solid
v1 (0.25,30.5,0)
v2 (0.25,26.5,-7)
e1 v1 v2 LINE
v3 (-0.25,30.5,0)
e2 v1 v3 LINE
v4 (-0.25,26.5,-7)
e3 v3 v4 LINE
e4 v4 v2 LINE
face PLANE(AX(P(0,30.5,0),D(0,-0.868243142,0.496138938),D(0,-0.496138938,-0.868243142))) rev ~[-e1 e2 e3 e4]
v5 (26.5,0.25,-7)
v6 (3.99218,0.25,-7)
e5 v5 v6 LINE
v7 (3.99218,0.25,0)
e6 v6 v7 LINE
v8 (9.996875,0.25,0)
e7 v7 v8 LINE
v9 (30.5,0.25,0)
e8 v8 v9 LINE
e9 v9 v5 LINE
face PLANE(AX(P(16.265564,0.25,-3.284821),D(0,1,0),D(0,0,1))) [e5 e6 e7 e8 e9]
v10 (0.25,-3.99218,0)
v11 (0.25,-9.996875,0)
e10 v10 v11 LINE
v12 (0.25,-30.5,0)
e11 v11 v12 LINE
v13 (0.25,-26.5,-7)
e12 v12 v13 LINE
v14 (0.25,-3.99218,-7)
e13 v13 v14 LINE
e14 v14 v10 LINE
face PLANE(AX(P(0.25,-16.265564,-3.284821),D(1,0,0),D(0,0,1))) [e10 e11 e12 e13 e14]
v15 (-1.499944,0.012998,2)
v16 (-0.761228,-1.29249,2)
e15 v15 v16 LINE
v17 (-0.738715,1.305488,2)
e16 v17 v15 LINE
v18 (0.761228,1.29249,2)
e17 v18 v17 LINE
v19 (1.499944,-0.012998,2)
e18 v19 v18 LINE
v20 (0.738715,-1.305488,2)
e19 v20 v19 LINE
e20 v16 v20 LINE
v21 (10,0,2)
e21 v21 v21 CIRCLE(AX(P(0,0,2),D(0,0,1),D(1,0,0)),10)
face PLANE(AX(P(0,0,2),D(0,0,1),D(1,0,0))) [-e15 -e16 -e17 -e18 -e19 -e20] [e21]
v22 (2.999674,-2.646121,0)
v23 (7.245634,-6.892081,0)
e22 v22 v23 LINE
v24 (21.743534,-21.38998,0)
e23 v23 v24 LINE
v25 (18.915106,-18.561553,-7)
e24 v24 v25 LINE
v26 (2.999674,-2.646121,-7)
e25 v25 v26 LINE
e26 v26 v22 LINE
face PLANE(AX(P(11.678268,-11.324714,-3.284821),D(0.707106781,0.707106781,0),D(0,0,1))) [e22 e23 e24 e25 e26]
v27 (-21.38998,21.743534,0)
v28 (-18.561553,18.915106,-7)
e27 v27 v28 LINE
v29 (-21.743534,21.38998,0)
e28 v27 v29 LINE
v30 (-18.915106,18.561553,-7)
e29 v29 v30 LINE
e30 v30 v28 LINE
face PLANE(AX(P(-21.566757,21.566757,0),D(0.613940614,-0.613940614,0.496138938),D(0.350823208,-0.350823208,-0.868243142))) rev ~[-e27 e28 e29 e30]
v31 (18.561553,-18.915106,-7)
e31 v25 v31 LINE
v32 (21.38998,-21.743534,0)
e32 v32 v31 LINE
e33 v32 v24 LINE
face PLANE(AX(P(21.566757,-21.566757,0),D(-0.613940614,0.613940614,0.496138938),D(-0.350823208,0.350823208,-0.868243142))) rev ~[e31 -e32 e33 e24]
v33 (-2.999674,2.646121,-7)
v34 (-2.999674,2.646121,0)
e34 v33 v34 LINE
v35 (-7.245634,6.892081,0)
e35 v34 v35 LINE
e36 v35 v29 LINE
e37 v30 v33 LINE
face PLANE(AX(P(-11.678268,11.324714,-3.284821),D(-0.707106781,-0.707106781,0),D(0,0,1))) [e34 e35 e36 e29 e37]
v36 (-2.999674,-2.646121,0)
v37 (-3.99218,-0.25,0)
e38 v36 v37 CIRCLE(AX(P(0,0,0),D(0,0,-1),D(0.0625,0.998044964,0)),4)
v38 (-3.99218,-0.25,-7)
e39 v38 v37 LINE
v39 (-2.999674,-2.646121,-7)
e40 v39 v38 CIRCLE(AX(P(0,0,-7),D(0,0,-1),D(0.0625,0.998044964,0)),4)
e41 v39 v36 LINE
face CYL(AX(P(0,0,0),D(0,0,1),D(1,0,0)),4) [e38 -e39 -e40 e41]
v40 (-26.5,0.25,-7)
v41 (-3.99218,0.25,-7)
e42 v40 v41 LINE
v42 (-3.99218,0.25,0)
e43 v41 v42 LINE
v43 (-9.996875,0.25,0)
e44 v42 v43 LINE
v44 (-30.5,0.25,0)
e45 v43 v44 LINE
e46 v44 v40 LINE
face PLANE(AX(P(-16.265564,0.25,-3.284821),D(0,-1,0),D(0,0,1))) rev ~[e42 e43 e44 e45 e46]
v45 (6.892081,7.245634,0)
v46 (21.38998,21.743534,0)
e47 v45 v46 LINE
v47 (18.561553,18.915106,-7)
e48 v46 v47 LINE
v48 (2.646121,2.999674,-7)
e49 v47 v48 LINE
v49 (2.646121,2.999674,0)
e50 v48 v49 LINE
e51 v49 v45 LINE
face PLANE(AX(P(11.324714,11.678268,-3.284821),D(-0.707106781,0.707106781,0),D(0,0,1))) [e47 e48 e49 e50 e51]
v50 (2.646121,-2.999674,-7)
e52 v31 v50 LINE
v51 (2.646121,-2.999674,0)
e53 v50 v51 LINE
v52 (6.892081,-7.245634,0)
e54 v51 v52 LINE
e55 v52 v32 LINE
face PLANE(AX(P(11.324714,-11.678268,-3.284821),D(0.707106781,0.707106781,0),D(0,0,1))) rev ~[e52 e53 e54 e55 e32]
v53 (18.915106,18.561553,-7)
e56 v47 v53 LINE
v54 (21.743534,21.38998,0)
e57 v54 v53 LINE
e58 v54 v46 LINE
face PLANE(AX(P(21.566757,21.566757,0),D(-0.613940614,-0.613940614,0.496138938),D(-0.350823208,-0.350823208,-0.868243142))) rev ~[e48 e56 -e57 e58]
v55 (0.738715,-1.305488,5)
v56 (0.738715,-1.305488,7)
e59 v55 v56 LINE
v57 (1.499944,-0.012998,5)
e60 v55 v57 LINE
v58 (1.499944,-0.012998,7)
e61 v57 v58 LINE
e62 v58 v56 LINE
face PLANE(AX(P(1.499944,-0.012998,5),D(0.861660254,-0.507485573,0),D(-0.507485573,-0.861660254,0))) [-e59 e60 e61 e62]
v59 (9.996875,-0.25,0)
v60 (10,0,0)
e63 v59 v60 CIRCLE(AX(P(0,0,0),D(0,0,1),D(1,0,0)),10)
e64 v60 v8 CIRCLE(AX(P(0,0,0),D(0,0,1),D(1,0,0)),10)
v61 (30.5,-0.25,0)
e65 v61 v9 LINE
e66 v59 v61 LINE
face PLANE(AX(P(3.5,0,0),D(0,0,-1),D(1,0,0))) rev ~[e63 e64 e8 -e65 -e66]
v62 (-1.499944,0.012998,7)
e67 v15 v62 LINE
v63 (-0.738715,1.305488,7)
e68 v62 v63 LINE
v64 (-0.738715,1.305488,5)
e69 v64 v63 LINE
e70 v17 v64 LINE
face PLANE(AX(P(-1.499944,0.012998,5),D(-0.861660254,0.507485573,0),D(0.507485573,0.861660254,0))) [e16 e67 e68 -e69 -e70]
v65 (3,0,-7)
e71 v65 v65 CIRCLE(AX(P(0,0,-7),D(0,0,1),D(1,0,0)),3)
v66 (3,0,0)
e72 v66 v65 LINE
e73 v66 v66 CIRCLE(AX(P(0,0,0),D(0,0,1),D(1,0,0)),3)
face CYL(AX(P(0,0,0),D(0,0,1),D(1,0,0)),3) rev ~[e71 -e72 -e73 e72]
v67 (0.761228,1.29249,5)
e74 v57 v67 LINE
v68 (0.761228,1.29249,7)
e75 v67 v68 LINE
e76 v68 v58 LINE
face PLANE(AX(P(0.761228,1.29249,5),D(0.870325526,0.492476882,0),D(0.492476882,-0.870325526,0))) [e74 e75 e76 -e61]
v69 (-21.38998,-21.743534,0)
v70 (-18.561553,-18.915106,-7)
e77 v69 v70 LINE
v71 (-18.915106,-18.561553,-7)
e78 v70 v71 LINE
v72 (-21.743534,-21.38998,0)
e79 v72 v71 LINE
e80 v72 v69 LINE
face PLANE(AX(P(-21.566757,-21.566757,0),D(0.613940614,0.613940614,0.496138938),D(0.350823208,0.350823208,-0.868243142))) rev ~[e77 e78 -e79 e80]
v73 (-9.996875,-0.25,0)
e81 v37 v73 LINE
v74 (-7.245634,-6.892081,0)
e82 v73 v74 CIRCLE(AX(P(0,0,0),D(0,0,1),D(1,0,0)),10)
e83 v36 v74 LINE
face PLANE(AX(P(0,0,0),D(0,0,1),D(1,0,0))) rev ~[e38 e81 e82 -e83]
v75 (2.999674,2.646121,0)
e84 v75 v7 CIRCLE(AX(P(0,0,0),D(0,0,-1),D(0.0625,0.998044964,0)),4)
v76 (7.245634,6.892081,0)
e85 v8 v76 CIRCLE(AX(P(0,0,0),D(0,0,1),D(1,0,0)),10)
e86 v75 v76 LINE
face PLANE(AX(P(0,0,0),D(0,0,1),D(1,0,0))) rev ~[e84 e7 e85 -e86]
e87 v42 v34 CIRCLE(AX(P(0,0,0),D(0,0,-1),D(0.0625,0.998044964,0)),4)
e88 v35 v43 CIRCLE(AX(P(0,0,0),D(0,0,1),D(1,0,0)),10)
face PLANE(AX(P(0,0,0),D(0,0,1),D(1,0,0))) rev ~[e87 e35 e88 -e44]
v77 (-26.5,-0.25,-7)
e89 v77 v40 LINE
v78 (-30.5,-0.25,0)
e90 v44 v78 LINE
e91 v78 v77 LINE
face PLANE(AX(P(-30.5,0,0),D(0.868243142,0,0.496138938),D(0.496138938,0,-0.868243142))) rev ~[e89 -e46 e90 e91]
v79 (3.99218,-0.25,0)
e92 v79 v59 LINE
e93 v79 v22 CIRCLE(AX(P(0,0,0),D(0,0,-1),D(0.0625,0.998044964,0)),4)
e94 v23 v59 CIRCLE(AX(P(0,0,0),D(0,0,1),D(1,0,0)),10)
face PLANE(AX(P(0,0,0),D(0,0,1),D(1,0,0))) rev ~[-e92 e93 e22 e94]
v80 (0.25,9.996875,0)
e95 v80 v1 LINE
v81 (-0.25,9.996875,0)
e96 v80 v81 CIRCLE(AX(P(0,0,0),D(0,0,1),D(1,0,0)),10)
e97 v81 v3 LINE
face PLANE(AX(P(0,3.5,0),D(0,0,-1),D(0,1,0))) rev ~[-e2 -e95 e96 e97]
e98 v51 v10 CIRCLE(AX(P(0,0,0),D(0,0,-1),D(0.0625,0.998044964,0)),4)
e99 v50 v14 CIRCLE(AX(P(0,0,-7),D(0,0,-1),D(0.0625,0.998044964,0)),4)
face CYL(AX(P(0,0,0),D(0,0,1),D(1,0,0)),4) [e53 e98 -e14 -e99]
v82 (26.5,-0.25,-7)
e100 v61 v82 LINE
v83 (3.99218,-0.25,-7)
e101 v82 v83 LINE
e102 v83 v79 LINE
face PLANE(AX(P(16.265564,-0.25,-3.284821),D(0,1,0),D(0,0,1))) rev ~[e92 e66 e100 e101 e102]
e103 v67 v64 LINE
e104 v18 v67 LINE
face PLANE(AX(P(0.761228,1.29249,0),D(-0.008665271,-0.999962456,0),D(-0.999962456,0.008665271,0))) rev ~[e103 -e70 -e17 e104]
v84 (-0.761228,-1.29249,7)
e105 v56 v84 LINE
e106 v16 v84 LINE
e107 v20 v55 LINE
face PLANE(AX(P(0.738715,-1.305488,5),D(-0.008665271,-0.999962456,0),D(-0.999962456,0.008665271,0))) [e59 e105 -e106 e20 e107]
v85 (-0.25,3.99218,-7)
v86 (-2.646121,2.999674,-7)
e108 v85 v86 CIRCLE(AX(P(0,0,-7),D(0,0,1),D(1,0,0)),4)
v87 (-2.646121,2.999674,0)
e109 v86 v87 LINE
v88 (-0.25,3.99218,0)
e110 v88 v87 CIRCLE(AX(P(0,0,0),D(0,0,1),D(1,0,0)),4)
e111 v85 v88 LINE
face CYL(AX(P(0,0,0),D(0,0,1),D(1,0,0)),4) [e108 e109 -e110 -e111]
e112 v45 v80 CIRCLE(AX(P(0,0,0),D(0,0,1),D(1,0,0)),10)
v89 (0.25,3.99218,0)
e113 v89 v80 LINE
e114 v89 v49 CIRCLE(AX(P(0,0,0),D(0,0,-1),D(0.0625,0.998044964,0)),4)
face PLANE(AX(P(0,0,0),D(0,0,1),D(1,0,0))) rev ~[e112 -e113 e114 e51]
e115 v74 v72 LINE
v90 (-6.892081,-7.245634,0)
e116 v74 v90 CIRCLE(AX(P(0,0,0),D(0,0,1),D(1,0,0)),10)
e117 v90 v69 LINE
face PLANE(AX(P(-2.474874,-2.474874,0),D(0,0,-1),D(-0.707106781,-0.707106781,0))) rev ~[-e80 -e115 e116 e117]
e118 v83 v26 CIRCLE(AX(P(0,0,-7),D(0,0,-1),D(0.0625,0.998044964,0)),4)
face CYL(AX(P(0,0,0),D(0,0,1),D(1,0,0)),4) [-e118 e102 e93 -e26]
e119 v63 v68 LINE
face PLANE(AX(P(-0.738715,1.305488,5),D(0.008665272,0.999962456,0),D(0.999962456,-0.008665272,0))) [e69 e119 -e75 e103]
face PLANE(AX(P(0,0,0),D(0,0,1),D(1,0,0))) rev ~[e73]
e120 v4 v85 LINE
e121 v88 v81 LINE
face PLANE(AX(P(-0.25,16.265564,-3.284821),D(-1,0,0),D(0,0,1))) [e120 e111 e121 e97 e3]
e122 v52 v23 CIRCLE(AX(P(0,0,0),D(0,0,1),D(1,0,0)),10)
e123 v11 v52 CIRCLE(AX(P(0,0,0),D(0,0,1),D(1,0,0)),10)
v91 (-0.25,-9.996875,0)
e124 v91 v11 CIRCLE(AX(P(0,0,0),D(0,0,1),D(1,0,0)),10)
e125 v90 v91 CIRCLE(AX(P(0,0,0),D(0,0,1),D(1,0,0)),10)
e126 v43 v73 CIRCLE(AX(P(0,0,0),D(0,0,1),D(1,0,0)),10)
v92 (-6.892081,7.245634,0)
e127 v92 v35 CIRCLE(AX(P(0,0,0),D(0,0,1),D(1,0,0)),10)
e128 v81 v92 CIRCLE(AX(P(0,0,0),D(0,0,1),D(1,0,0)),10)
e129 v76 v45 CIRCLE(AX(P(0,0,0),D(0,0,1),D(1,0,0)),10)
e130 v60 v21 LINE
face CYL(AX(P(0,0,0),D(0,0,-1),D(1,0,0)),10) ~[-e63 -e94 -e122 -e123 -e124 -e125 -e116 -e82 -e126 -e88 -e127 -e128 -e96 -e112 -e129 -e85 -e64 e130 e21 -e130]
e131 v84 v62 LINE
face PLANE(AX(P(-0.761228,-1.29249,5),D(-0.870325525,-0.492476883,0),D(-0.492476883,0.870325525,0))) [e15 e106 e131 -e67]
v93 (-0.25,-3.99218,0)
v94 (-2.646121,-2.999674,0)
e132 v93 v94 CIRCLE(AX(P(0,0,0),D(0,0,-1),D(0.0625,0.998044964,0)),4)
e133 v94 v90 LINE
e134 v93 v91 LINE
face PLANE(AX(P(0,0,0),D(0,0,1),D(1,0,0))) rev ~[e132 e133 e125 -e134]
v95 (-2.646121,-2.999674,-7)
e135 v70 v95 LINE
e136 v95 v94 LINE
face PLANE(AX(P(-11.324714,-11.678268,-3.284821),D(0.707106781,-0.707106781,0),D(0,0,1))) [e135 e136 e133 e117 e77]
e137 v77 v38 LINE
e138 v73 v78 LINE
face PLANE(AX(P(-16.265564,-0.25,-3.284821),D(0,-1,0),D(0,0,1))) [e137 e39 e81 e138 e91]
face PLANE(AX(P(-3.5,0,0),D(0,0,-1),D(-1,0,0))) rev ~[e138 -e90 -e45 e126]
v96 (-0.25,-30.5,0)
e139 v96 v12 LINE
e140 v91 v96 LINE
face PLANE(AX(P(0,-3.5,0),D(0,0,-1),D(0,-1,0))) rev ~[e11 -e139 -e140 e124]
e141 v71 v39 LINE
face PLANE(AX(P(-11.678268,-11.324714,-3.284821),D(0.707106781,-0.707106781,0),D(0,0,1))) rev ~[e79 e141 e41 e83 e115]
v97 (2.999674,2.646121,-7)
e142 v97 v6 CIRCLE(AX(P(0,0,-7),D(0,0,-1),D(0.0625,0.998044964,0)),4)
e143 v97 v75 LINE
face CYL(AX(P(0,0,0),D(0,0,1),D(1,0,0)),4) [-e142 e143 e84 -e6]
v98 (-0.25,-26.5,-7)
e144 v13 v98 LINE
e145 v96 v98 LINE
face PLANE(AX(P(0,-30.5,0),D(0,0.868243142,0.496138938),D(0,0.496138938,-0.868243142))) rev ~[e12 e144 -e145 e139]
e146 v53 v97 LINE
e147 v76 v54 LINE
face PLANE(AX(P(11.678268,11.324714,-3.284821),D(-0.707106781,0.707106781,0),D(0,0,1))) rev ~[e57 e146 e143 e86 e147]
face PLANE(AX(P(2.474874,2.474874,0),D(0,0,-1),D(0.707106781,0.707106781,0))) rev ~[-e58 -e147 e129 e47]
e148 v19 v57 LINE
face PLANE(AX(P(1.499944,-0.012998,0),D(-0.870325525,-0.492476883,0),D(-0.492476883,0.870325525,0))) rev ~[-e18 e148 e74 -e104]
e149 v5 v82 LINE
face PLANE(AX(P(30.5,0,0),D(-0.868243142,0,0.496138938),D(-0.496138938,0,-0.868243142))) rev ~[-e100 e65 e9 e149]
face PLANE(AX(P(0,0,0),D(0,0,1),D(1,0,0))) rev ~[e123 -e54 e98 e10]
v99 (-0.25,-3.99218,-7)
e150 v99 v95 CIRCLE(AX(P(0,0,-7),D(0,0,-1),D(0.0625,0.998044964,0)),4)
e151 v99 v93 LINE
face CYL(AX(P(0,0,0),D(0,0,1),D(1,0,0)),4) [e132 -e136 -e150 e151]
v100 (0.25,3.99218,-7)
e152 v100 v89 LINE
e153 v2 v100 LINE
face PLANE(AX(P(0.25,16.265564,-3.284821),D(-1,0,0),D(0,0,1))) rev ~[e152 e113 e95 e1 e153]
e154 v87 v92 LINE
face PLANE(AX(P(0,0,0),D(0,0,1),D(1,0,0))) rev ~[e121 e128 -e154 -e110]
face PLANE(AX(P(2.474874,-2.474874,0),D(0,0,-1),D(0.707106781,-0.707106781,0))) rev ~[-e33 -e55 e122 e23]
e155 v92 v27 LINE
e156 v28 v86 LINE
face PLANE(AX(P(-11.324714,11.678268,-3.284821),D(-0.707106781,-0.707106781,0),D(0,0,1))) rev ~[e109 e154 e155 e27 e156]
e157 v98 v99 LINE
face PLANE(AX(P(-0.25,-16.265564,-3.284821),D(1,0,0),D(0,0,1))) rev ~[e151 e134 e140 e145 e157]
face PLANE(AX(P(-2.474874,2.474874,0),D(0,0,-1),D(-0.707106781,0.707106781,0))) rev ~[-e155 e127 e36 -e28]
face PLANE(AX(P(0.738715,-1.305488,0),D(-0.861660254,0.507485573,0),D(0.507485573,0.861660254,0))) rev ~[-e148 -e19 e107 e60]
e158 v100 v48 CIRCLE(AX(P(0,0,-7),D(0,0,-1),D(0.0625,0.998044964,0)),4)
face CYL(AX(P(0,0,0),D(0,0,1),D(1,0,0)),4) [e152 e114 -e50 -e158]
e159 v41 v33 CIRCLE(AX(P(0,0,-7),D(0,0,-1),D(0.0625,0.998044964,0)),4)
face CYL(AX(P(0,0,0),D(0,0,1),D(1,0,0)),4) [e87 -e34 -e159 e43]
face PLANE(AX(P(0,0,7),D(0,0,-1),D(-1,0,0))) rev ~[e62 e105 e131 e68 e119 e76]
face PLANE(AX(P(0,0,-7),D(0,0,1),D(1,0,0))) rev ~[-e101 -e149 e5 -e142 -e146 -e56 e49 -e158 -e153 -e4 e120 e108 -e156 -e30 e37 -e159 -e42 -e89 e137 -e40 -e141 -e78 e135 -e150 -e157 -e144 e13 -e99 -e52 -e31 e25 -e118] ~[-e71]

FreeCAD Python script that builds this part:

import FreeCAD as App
import Part
import Sketcher
from FreeCAD import Vector


def add_polygon(sketch, points):
    """Adds a closed chain of lines whose ends are joined by coincident constraints."""
    first, n = sketch.GeometryCount, len(points)
    for a, b in zip(points, points[1:] + points[:1]):
        sketch.addGeometry(Part.LineSegment(App.Vector(*a, 0), App.Vector(*b, 0)), False)
    for i in range(n):
        sketch.addConstraint(Sketcher.Constraint("Coincident", first + i, 2, first + (i + 1) % n, 1))

doc = App.newDocument("Part")
body = doc.addObject("PartDesign::Body", "Body")

sketch1 = body.newObject("Sketcher::SketchObject", "Sketch")
sketch1.AttachmentSupport = (doc.getObject("XY_Plane"), [""])
sketch1.MapMode = "FlatFace"
add_polygon(sketch1, [(-0.7, 1.3), (-1.5, 0), (-0.8, -1.3), (0.7, -1.3), (1.5, 0), (0.8, 1.3)])
sketch1.addConstraint([
    Sketcher.Constraint("Symmetric", 0, 2, 3, 2, -1, 1),
    Sketcher.Constraint("Symmetric", 1, 2, 4, 2, -1, 1),
    Sketcher.Constraint("Symmetric", 2, 2, 5, 2, -1, 1),
    Sketcher.Constraint("Equal", 0, 1),
    Sketcher.Constraint("Equal", 1, 2),
    Sketcher.Constraint("Distance", 0, 1.5),
    Sketcher.Constraint("DistanceX", 1, 2, -1, 1, 0.761228),
    Sketcher.Constraint("DistanceY", 1, 2, -1, 1, 1.29249),
    Sketcher.Constraint("DistanceY", 2, 2, -1, 1, 1.305488),
])
pad1 = body.newObject("PartDesign::Pad", "Pad")
pad1.Profile = sketch1
pad1.Length = 5

sketch2 = body.newObject("Sketcher::SketchObject", "Sketch001")
sketch2.AttachmentSupport = (doc.getObject("XY_Plane"), [""])
sketch2.MapMode = "FlatFace"
sketch2.addGeometry(Part.Circle(Vector(0, 0, 0), Vector(0, 0, 1), 10), False)
sketch2.addConstraint([
    Sketcher.Constraint("Coincident", 0, 3, -1, 1),
    Sketcher.Constraint("Diameter", 0, 20.0),
])
pad2 = body.newObject("PartDesign::Pad", "Pad001")
pad2.Profile = sketch2
pad2.Length = 2

sketch3 = body.newObject("Sketcher::SketchObject", "Sketch002")
sketch3.AttachmentSupport = (doc.getObject("XY_Plane"), [""])
sketch3.MapMode = "FlatFace"
sketch3.addGeometry([
    Part.Circle(Vector(0, 0, 0), Vector(0, 0, 1), 4),
    Part.Circle(Vector(0, 0, 0), Vector(0, 0, 1), 3),
], False)
sketch3.addConstraint([
    Sketcher.Constraint("Coincident", 0, 3, -1, 1),
    Sketcher.Constraint("Coincident", 1, 3, -1, 1),
    Sketcher.Constraint("Diameter", 0, 8.0),
    Sketcher.Constraint("Diameter", 1, 6.0),
])
pad3 = body.newObject("PartDesign::Pad", "Pad002")
pad3.Profile = sketch3
pad3.Length = 7
pad3.Reversed = True

sketch4 = body.newObject("Sketcher::SketchObject", "Sketch003")
sketch4.AttachmentSupport = (doc.getObject("YZ_Plane"), [""])
sketch4.MapMode = "FlatFace"
add_polygon(sketch4, [(4, 0), (4, -7), (26, -7), (30, 0)])
sketch4.addConstraint([
    Sketcher.Constraint("Vertical", 0),
    Sketcher.Constraint("Horizontal", 1),
    Sketcher.Constraint("Horizontal", 3),
    Sketcher.Constraint("PointOnObject", 2, 2, -1),
    Sketcher.Constraint("DistanceX", 1, 1, 1, 2, 23.0),
    Sketcher.Constraint("DistanceX", 3, 2, 3, 1, 27.0),
    Sketcher.Constraint("DistanceY", 0, 2, 0, 1, 7.0),
    Sketcher.Constraint("DistanceX", -1, 1, 0, 2, 3.5),
])
pad4 = body.newObject("PartDesign::Pad", "Pad003")
pad4.Profile = sketch4
pad4.Length = 0.5
pad4.Midplane = True
doc.recompute()

polarpattern = body.newObject("PartDesign::PolarPattern", "PolarPattern")
polarpattern.Originals = [pad4]
polarpattern.Axis = (doc.getObject("Z_Axis"), [""])
polarpattern.Angle = 360
polarpattern.Occurrences = 8
body.Tip = polarpattern

sketch5 = body.newObject("Sketcher::SketchObject", "Sketch004")
sketch5.AttachmentSupport = (doc.getObject("XY_Plane"), [""])
sketch5.MapMode = "FlatFace"
sketch5.AttachmentOffset = App.Placement(Vector(0, 0, 5), App.Rotation())
add_polygon(sketch5, [(-0.7, 1.3), (0.8, 1.3), (1.5, 0), (0.7, -1.3), (-0.8, -1.3), (-1.5, 0)])
sketch5.addConstraint([
    Sketcher.Constraint("Symmetric", 0, 2, 3, 2, -1, 1),
    Sketcher.Constraint("Symmetric", 1, 2, 4, 2, -1, 1),
    Sketcher.Constraint("Symmetric", 2, 2, 5, 2, -1, 1),
    Sketcher.Constraint("Equal", 0, 1),
    Sketcher.Constraint("Equal", 1, 2),
    Sketcher.Constraint("Distance", 0, 1.5),
    Sketcher.Constraint("DistanceX", -1, 1, 0, 2, 0.761228),
    Sketcher.Constraint("DistanceY", -1, 1, 0, 2, 1.29249),
    Sketcher.Constraint("DistanceY", 2, 2, -1, 1, 1.305488),
])
pad5 = body.newObject("PartDesign::Pad", "Pad004")
pad5.Profile = sketch5
pad5.Length = 2

doc.recompute()
